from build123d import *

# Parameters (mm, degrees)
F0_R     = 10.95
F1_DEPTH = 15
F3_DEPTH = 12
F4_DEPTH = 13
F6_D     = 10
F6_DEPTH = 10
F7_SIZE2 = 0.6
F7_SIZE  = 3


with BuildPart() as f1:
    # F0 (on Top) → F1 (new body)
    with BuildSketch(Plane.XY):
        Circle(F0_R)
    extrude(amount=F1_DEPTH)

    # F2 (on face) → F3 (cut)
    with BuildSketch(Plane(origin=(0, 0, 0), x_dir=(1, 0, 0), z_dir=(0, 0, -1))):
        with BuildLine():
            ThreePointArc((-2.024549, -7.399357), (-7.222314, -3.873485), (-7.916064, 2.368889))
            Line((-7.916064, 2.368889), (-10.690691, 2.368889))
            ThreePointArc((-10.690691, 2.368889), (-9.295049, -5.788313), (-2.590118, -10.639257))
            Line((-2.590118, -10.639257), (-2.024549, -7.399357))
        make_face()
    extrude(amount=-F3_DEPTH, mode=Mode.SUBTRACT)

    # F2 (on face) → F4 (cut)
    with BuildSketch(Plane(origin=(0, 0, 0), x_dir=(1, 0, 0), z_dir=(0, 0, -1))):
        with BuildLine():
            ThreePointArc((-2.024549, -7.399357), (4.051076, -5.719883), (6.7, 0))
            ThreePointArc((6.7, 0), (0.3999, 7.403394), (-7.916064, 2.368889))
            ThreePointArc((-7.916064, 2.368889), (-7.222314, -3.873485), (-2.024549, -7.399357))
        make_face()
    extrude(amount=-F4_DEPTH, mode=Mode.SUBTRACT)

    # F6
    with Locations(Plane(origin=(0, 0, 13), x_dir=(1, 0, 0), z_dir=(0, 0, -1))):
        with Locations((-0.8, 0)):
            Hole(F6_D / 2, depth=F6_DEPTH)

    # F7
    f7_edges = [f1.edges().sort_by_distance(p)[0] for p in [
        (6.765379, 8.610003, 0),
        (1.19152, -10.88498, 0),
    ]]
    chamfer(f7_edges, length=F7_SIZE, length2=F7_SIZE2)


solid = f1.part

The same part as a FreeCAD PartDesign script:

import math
import FreeCAD as App
import Part
import Sketcher

V = App.Vector


def edges_at(feature, points):
    """Names of the edges that pass closest to the given points."""
    edges = feature.Shape.Edges
    near = lambda p: min(range(len(edges)), key=lambda i: edges[i].distToShape(Part.Vertex(*p))[0])
    return sorted({f"Edge{near(p) + 1}" for p in points})

doc = App.newDocument("Part")
body = doc.addObject("PartDesign::Body", "Body")

sketch1 = body.newObject("Sketcher::SketchObject", "Sketch")
sketch1.AttachmentSupport = (doc.getObject("XY_Plane"), [""])
sketch1.MapMode = "FlatFace"
sketch1.addGeometry(Part.Circle(V(0, 0, 0), V(0, 0, 1), 11), False)
sketch1.addConstraint(Sketcher.Constraint("Coincident", 0, 3, -1, 1))
sketch1.addConstraint(Sketcher.Constraint("Diameter", 0, 21.9))
pad1 = body.newObject("PartDesign::Pad", "Pad")
pad1.Profile = sketch1
pad1.Length = 15

sketch2 = body.newObject("Sketcher::SketchObject", "Sketch001")
sketch2.AttachmentSupport = (doc.getObject("XY_Plane"), [""])
sketch2.MapMode = "FlatFace"
sketch2.addGeometry(Part.ArcOfCircle(Part.Circle(V(-0.8, 0, 0), V(0, 0, 1), 7.5), math.radians(99), math.radians(198)), False)
sketch2.addGeometry(Part.LineSegment(V(-7.9, -2.4, 0), V(-10.7, -2.4, 0)), False)
sketch2.addGeometry(Part.ArcOfCircle(Part.Circle(V(0, 0, 0), V(0, 0, 1), 11), math.radians(104), math.radians(192)), False)
sketch2.addGeometry(Part.LineSegment(V(-2.6, 10.6, 0), V(-2, 7.4, 0)), False)
sketch2.addConstraint(Sketcher.Constraint("Coincident", 0, 2, 1, 1))
sketch2.addConstraint(Sketcher.Constraint("Coincident", 1, 2, 2, 2))
sketch2.addConstraint(Sketcher.Constraint("Coincident", 2, 1, 3, 1))
sketch2.addConstraint(Sketcher.Constraint("Coincident", 3, 2, 0, 1))
sketch2.addConstraint(Sketcher.Constraint("Horizontal", 1))
sketch2.addConstraint(Sketcher.Constraint("Coincident", 2, 3, -1, 1))
sketch2.addConstraint(Sketcher.Constraint("PointOnObject", 0, 3, -1))
sketch2.addConstraint(Sketcher.Constraint("Radius", 0, 7.5))
sketch2.addConstraint(Sketcher.Constraint("Radius", 2, 10.95))
sketch2.addConstraint(Sketcher.Constraint("DistanceX", 0, 3, -1, 1, 0.8))
sketch2.addConstraint(Sketcher.Constraint("DistanceY", 3, 2, 2, 1, 3.2399))
sketch2.addConstraint(Sketcher.Constraint("DistanceX", 1, 2, 1, 1, 2.774627))
sketch2.addConstraint(Sketcher.Constraint("DistanceX", 3, 2, -1, 1, 2.024549))
pocket1 = body.newObject("PartDesign::Pocket", "Pocket")
pocket1.Profile = sketch2
pocket1.Length = 12
pocket1.Reversed = True

sketch3 = body.newObject("Sketcher::SketchObject", "Sketch002")
sketch3.AttachmentSupport = (doc.getObject("XY_Plane"), [""])
sketch3.MapMode = "FlatFace"
sketch3.addGeometry(Part.ArcOfCircle(Part.Circle(V(-1, 0, 0), V(0, 0, 1), 8), math.radians(0), math.radians(99)), False)
sketch3.addGeometry(Part.ArcOfCircle(Part.Circle(V(-1, 0, 0), V(0, 0, 1), 8), math.radians(-162), math.radians(0)), False)
sketch3.addGeometry(Part.ArcOfCircle(Part.Circle(V(-1, 0, 0), V(0, 0, 1), 8), math.radians(99), math.radians(198)), False)
sketch3.addConstraint(Sketcher.Constraint("Tangent", 0, 1, 1, 2))
sketch3.addConstraint(Sketcher.Constraint("Tangent", 1, 1, 2, 2))
sketch3.addConstraint(Sketcher.Constraint("Tangent", 2, 1, 0, 2))
sketch3.addConstraint(Sketcher.Constraint("PointOnObject", 0, 3, -1))
sketch3.addConstraint(Sketcher.Constraint("PointOnObject", 0, 1, -1))
sketch3.addConstraint(Sketcher.Constraint("Radius", 0, 7.5))
sketch3.addConstraint(Sketcher.Constraint("DistanceX", 0, 3, -1, 1, 0.8))
sketch3.addConstraint(Sketcher.Constraint("DistanceY", 1, 1, -1, 1, 2.368889))
sketch3.addConstraint(Sketcher.Constraint("DistanceX", 2, 1, -1, 1, 2.024549))
pocket2 = body.newObject("PartDesign::Pocket", "Pocket001")
pocket2.Profile = sketch3
pocket2.Length = 13
pocket2.Reversed = True

sketch4 = body.newObject("Sketcher::SketchObject", "Sketch003")
sketch4.AttachmentSupport = (doc.getObject("XY_Plane"), [""])
sketch4.MapMode = "FlatFace"
sketch4.AttachmentOffset = App.Placement(V(0, 0, 13), App.Rotation())
sketch4.addGeometry(Part.Circle(V(-1, 0, 0), V(0, 0, 1), 5), False)
sketch4.addConstraint(Sketcher.Constraint("PointOnObject", 0, 3, -1))
sketch4.addConstraint(Sketcher.Constraint("Diameter", 0, 10.0))
sketch4.addConstraint(Sketcher.Constraint("DistanceX", 0, 3, -1, 1, 0.8))
doc.recompute()
hole = body.newObject("PartDesign::Hole", "Hole")
hole.Profile = sketch4
hole.ThreadType = "None"
hole.Diameter = 10
hole.DepthType = "Dimension"
hole.Depth = 10
hole.DrillPoint = "Flat"
hole.Reversed = True
doc.recompute()

chamfer = body.newObject("PartDesign::Chamfer", "Chamfer")
chamfer.Base = (hole, edges_at(hole, [(6.765, 8.61, 0), (1.192, -10.885, 0)]))
chamfer.ChamferType = "Two distances"
chamfer.Size = 3
chamfer.Size2 = 0.6

doc.recompute()
